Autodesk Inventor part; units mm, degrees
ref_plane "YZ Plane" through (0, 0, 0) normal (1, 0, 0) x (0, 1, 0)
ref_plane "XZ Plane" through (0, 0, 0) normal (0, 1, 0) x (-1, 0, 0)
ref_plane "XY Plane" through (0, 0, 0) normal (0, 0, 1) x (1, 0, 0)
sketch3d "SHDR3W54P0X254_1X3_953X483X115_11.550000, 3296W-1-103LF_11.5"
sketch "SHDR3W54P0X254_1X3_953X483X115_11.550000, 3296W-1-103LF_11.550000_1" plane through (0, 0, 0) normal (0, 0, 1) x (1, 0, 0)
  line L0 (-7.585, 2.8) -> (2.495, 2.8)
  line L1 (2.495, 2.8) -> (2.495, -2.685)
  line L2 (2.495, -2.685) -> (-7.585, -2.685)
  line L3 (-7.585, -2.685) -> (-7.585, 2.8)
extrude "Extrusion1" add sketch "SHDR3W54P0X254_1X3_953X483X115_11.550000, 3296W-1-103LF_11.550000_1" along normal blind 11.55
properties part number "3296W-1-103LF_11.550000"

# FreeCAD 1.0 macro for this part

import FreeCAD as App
import Part
import Sketcher

doc = App.newDocument("Part")
body = doc.addObject("PartDesign::Body", "Body")

# Sketch on XY plane
sketch1 = body.newObject("Sketcher::SketchObject", "Sketch")
sketch1.AttachmentSupport = (doc.getObject("XY_Plane"), [""])
sketch1.MapMode = "FlatFace"
sketch1.addGeometry([
    Part.LineSegment(App.Vector(2, 3, 0), App.Vector(-8, 3, 0)),
    Part.LineSegment(App.Vector(-8, 3, 0), App.Vector(-8, -3, 0)),
    Part.LineSegment(App.Vector(-8, -3, 0), App.Vector(2, -3, 0)),
    Part.LineSegment(App.Vector(2, -3, 0), App.Vector(2, 3, 0)),
], False)
sketch1.addConstraint([
    Sketcher.Constraint("Coincident", 0, 2, 1, 1),
    Sketcher.Constraint("Coincident", 1, 2, 2, 1),
    Sketcher.Constraint("Coincident", 2, 2, 3, 1),
    Sketcher.Constraint("Coincident", 3, 2, 0, 1),
    Sketcher.Constraint("Horizontal", 0),
    Sketcher.Constraint("Vertical", 1),
    Sketcher.Constraint("Horizontal", 2),
    Sketcher.Constraint("Vertical", 3),
    Sketcher.Constraint("DistanceX", 0, 2, 0, 1, 10.08),
    Sketcher.Constraint("DistanceY", -1, 1, 0, 2, 2.8),
    Sketcher.Constraint("DistanceY", 1, 2, 1, 1, 5.485),
    Sketcher.Constraint("DistanceX", 0, 2, -1, 1, 7.585),
])
pad1 = body.newObject("PartDesign::Pad", "Pad")
pad1.Profile = sketch1
pad1.Length = 11.55

doc.recompute()
